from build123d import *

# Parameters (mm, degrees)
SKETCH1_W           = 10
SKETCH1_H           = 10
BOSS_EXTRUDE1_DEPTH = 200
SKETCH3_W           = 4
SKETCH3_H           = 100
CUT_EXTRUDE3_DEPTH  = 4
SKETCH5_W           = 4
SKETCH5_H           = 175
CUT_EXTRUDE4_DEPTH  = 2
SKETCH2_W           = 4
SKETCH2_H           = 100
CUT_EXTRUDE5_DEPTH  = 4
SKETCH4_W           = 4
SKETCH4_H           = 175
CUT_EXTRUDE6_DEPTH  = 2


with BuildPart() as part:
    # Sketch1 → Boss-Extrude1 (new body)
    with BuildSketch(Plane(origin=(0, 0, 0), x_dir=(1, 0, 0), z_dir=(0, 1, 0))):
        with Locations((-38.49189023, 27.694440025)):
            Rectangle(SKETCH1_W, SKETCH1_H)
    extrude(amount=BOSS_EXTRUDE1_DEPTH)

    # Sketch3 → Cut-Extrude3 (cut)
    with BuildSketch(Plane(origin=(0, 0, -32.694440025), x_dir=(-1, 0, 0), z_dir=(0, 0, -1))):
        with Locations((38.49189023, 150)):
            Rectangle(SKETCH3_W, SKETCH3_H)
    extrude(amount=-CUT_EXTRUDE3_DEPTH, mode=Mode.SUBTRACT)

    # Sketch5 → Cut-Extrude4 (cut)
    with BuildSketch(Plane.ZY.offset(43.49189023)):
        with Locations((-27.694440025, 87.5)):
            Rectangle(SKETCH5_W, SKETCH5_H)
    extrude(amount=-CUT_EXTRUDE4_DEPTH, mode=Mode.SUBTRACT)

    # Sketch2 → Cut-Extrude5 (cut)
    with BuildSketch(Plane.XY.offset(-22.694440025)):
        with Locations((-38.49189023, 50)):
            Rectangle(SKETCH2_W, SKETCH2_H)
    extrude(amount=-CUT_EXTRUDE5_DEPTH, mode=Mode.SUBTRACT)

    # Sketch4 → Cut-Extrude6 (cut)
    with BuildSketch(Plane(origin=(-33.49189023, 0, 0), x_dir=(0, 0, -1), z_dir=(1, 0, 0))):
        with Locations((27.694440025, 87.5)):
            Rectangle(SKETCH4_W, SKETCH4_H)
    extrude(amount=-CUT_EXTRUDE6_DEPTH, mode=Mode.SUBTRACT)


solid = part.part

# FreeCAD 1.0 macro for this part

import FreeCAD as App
import Part
import Sketcher
from FreeCAD import Vector
Q = App.Units.Quantity


def add_polygon(sketch, points):
    """Adds a closed chain of lines whose ends are joined by coincident constraints."""
    first, n = sketch.GeometryCount, len(points)
    for a, b in zip(points, points[1:] + points[:1]):
        sketch.addGeometry(Part.LineSegment(App.Vector(*a, 0), App.Vector(*b, 0)), False)
    for i in range(n):
        sketch.addConstraint(Sketcher.Constraint("Coincident", first + i, 2, first + (i + 1) % n, 1))

doc = App.newDocument("Part")
body = doc.addObject("PartDesign::Body", "Body")

# Sketch on XZ plane
sketch1 = body.newObject("Sketcher::SketchObject", "Sketch")
sketch1.AttachmentSupport = (doc.getObject("XZ_Plane"), [""])
sketch1.MapMode = "FlatFace"
add_polygon(sketch1, [(-43, -33), (-43, -23), (-33, -23), (-33, -33)])  # lines 0-3
sketch1.addConstraint([
    Sketcher.Constraint("Vertical", 0),
    Sketcher.Constraint("Horizontal", 1),
    Sketcher.Constraint("Vertical", 2),
    Sketcher.Constraint("Horizontal", 3),
    Sketcher.Constraint("Equal", 3, 0),
    Sketcher.Constraint("DistanceX", 1, 1, 1, 2, Q("10 mm")),
    Sketcher.Constraint("DistanceX", 0, 2, -1, 1, Q("43.49189 mm")),
    Sketcher.Constraint("DistanceY", 0, 2, -1, 1, Q("22.69444 mm")),
])
pad1 = body.newObject("PartDesign::Pad", "Pad")
pad1.Profile = sketch1
pad1.Length = 200
pad1.Reversed = True

# Sketch on XY plane
sketch2 = body.newObject("Sketcher::SketchObject", "Sketch001")
sketch2.AttachmentSupport = (doc.getObject("XY_Plane"), [""])
sketch2.MapMode = "FlatFace"
sketch2.AttachmentOffset = App.Placement(Vector(0, 0, -32.69444), App.Rotation())
add_polygon(sketch2, [(-36.5, 200), (-36.5, 100), (-40.5, 100), (-40.5, 200)])  # lines 0-3
sketch2.addConstraint([
    Sketcher.Constraint("Vertical", 0),
    Sketcher.Constraint("Horizontal", 1),
    Sketcher.Constraint("Vertical", 2),
    Sketcher.Constraint("Horizontal", 3),
    Sketcher.Constraint("DistanceX", 1, 2, 1, 1, Q("4 mm")),
    Sketcher.Constraint("DistanceY", 0, 2, 0, 1, Q("100 mm")),
    Sketcher.Constraint("DistanceY", -1, 1, 0, 2, Q("100 mm")),
    Sketcher.Constraint("DistanceX", 0, 2, -1, 1, Q("36.49189 mm")),
])
pocket1 = body.newObject("PartDesign::Pocket", "Pocket")
pocket1.Profile = sketch2
pocket1.Length = 4
pocket1.Reversed = True

# Sketch on YZ plane
sketch3 = body.newObject("Sketcher::SketchObject", "Sketch002")
sketch3.AttachmentSupport = (doc.getObject("YZ_Plane"), [""])
sketch3.MapMode = "FlatFace"
sketch3.AttachmentOffset = App.Placement(Vector(0, 0, -43.49189), App.Rotation())
add_polygon(sketch3, [(175, -29.7), (0, -29.7), (0, -25.7), (175, -25.7)])  # lines 0-3
sketch3.addConstraint([
    Sketcher.Constraint("Horizontal", 0),
    Sketcher.Constraint("Vertical", 1),
    Sketcher.Constraint("Horizontal", 2),
    Sketcher.Constraint("Vertical", 3),
    Sketcher.Constraint("PointOnObject", 0, 2, -2),
    Sketcher.Constraint("DistanceX", 0, 2, 0, 1, Q("175 mm")),
    Sketcher.Constraint("DistanceY", 1, 1, 1, 2, Q("4 mm")),
    Sketcher.Constraint("DistanceY", 0, 2, -1, 1, Q("29.69444 mm")),
])
pocket2 = body.newObject("PartDesign::Pocket", "Pocket001")
pocket2.Profile = sketch3
pocket2.Length = 2
pocket2.Reversed = True

# Sketch on XY plane
sketch4 = body.newObject("Sketcher::SketchObject", "Sketch003")
sketch4.AttachmentSupport = (doc.getObject("XY_Plane"), [""])
sketch4.MapMode = "FlatFace"
sketch4.AttachmentOffset = App.Placement(Vector(0, 0, -22.69444), App.Rotation())
add_polygon(sketch4, [(-40.5, 100), (-40.5, 0), (-36.5, 0), (-36.5, 100)])  # lines 0-3
sketch4.addConstraint([
    Sketcher.Constraint("Vertical", 0),
    Sketcher.Constraint("Horizontal", 1),
    Sketcher.Constraint("Vertical", 2),
    Sketcher.Constraint("Horizontal", 3),
    Sketcher.Constraint("PointOnObject", 0, 2, -1),
    Sketcher.Constraint("DistanceX", 1, 1, 1, 2, Q("4 mm")),
    Sketcher.Constraint("DistanceY", 0, 2, 0, 1, Q("100 mm")),
    Sketcher.Constraint("DistanceX", 0, 2, -1, 1, Q("40.49189 mm")),
])
pocket3 = body.newObject("PartDesign::Pocket", "Pocket002")
pocket3.Profile = sketch4
pocket3.Length = 4

# Sketch on YZ plane
sketch5 = body.newObject("Sketcher::SketchObject", "Sketch004")
sketch5.AttachmentSupport = (doc.getObject("YZ_Plane"), [""])
sketch5.MapMode = "FlatFace"
sketch5.AttachmentOffset = App.Placement(Vector(0, 0, -33.49189), App.Rotation())
add_polygon(sketch5, [(175, -25.7), (0, -25.7), (0, -29.7), (175, -29.7)])  # lines 0-3
sketch5.addConstraint([
    Sketcher.Constraint("Horizontal", 0),
    Sketcher.Constraint("Vertical", 1),
    Sketcher.Constraint("Horizontal", 2),
    Sketcher.Constraint("Vertical", 3),
    Sketcher.Constraint("PointOnObject", 0, 2, -2),
    Sketcher.Constraint("DistanceX", 0, 2, 0, 1, Q("175 mm")),
    Sketcher.Constraint("DistanceY", 1, 2, 1, 1, Q("4 mm")),
    Sketcher.Constraint("DistanceY", 0, 2, -1, 1, Q("25.69444 mm")),
])
pocket4 = body.newObject("PartDesign::Pocket", "Pocket003")
pocket4.Profile = sketch5
pocket4.Length = 2

doc.recompute()
